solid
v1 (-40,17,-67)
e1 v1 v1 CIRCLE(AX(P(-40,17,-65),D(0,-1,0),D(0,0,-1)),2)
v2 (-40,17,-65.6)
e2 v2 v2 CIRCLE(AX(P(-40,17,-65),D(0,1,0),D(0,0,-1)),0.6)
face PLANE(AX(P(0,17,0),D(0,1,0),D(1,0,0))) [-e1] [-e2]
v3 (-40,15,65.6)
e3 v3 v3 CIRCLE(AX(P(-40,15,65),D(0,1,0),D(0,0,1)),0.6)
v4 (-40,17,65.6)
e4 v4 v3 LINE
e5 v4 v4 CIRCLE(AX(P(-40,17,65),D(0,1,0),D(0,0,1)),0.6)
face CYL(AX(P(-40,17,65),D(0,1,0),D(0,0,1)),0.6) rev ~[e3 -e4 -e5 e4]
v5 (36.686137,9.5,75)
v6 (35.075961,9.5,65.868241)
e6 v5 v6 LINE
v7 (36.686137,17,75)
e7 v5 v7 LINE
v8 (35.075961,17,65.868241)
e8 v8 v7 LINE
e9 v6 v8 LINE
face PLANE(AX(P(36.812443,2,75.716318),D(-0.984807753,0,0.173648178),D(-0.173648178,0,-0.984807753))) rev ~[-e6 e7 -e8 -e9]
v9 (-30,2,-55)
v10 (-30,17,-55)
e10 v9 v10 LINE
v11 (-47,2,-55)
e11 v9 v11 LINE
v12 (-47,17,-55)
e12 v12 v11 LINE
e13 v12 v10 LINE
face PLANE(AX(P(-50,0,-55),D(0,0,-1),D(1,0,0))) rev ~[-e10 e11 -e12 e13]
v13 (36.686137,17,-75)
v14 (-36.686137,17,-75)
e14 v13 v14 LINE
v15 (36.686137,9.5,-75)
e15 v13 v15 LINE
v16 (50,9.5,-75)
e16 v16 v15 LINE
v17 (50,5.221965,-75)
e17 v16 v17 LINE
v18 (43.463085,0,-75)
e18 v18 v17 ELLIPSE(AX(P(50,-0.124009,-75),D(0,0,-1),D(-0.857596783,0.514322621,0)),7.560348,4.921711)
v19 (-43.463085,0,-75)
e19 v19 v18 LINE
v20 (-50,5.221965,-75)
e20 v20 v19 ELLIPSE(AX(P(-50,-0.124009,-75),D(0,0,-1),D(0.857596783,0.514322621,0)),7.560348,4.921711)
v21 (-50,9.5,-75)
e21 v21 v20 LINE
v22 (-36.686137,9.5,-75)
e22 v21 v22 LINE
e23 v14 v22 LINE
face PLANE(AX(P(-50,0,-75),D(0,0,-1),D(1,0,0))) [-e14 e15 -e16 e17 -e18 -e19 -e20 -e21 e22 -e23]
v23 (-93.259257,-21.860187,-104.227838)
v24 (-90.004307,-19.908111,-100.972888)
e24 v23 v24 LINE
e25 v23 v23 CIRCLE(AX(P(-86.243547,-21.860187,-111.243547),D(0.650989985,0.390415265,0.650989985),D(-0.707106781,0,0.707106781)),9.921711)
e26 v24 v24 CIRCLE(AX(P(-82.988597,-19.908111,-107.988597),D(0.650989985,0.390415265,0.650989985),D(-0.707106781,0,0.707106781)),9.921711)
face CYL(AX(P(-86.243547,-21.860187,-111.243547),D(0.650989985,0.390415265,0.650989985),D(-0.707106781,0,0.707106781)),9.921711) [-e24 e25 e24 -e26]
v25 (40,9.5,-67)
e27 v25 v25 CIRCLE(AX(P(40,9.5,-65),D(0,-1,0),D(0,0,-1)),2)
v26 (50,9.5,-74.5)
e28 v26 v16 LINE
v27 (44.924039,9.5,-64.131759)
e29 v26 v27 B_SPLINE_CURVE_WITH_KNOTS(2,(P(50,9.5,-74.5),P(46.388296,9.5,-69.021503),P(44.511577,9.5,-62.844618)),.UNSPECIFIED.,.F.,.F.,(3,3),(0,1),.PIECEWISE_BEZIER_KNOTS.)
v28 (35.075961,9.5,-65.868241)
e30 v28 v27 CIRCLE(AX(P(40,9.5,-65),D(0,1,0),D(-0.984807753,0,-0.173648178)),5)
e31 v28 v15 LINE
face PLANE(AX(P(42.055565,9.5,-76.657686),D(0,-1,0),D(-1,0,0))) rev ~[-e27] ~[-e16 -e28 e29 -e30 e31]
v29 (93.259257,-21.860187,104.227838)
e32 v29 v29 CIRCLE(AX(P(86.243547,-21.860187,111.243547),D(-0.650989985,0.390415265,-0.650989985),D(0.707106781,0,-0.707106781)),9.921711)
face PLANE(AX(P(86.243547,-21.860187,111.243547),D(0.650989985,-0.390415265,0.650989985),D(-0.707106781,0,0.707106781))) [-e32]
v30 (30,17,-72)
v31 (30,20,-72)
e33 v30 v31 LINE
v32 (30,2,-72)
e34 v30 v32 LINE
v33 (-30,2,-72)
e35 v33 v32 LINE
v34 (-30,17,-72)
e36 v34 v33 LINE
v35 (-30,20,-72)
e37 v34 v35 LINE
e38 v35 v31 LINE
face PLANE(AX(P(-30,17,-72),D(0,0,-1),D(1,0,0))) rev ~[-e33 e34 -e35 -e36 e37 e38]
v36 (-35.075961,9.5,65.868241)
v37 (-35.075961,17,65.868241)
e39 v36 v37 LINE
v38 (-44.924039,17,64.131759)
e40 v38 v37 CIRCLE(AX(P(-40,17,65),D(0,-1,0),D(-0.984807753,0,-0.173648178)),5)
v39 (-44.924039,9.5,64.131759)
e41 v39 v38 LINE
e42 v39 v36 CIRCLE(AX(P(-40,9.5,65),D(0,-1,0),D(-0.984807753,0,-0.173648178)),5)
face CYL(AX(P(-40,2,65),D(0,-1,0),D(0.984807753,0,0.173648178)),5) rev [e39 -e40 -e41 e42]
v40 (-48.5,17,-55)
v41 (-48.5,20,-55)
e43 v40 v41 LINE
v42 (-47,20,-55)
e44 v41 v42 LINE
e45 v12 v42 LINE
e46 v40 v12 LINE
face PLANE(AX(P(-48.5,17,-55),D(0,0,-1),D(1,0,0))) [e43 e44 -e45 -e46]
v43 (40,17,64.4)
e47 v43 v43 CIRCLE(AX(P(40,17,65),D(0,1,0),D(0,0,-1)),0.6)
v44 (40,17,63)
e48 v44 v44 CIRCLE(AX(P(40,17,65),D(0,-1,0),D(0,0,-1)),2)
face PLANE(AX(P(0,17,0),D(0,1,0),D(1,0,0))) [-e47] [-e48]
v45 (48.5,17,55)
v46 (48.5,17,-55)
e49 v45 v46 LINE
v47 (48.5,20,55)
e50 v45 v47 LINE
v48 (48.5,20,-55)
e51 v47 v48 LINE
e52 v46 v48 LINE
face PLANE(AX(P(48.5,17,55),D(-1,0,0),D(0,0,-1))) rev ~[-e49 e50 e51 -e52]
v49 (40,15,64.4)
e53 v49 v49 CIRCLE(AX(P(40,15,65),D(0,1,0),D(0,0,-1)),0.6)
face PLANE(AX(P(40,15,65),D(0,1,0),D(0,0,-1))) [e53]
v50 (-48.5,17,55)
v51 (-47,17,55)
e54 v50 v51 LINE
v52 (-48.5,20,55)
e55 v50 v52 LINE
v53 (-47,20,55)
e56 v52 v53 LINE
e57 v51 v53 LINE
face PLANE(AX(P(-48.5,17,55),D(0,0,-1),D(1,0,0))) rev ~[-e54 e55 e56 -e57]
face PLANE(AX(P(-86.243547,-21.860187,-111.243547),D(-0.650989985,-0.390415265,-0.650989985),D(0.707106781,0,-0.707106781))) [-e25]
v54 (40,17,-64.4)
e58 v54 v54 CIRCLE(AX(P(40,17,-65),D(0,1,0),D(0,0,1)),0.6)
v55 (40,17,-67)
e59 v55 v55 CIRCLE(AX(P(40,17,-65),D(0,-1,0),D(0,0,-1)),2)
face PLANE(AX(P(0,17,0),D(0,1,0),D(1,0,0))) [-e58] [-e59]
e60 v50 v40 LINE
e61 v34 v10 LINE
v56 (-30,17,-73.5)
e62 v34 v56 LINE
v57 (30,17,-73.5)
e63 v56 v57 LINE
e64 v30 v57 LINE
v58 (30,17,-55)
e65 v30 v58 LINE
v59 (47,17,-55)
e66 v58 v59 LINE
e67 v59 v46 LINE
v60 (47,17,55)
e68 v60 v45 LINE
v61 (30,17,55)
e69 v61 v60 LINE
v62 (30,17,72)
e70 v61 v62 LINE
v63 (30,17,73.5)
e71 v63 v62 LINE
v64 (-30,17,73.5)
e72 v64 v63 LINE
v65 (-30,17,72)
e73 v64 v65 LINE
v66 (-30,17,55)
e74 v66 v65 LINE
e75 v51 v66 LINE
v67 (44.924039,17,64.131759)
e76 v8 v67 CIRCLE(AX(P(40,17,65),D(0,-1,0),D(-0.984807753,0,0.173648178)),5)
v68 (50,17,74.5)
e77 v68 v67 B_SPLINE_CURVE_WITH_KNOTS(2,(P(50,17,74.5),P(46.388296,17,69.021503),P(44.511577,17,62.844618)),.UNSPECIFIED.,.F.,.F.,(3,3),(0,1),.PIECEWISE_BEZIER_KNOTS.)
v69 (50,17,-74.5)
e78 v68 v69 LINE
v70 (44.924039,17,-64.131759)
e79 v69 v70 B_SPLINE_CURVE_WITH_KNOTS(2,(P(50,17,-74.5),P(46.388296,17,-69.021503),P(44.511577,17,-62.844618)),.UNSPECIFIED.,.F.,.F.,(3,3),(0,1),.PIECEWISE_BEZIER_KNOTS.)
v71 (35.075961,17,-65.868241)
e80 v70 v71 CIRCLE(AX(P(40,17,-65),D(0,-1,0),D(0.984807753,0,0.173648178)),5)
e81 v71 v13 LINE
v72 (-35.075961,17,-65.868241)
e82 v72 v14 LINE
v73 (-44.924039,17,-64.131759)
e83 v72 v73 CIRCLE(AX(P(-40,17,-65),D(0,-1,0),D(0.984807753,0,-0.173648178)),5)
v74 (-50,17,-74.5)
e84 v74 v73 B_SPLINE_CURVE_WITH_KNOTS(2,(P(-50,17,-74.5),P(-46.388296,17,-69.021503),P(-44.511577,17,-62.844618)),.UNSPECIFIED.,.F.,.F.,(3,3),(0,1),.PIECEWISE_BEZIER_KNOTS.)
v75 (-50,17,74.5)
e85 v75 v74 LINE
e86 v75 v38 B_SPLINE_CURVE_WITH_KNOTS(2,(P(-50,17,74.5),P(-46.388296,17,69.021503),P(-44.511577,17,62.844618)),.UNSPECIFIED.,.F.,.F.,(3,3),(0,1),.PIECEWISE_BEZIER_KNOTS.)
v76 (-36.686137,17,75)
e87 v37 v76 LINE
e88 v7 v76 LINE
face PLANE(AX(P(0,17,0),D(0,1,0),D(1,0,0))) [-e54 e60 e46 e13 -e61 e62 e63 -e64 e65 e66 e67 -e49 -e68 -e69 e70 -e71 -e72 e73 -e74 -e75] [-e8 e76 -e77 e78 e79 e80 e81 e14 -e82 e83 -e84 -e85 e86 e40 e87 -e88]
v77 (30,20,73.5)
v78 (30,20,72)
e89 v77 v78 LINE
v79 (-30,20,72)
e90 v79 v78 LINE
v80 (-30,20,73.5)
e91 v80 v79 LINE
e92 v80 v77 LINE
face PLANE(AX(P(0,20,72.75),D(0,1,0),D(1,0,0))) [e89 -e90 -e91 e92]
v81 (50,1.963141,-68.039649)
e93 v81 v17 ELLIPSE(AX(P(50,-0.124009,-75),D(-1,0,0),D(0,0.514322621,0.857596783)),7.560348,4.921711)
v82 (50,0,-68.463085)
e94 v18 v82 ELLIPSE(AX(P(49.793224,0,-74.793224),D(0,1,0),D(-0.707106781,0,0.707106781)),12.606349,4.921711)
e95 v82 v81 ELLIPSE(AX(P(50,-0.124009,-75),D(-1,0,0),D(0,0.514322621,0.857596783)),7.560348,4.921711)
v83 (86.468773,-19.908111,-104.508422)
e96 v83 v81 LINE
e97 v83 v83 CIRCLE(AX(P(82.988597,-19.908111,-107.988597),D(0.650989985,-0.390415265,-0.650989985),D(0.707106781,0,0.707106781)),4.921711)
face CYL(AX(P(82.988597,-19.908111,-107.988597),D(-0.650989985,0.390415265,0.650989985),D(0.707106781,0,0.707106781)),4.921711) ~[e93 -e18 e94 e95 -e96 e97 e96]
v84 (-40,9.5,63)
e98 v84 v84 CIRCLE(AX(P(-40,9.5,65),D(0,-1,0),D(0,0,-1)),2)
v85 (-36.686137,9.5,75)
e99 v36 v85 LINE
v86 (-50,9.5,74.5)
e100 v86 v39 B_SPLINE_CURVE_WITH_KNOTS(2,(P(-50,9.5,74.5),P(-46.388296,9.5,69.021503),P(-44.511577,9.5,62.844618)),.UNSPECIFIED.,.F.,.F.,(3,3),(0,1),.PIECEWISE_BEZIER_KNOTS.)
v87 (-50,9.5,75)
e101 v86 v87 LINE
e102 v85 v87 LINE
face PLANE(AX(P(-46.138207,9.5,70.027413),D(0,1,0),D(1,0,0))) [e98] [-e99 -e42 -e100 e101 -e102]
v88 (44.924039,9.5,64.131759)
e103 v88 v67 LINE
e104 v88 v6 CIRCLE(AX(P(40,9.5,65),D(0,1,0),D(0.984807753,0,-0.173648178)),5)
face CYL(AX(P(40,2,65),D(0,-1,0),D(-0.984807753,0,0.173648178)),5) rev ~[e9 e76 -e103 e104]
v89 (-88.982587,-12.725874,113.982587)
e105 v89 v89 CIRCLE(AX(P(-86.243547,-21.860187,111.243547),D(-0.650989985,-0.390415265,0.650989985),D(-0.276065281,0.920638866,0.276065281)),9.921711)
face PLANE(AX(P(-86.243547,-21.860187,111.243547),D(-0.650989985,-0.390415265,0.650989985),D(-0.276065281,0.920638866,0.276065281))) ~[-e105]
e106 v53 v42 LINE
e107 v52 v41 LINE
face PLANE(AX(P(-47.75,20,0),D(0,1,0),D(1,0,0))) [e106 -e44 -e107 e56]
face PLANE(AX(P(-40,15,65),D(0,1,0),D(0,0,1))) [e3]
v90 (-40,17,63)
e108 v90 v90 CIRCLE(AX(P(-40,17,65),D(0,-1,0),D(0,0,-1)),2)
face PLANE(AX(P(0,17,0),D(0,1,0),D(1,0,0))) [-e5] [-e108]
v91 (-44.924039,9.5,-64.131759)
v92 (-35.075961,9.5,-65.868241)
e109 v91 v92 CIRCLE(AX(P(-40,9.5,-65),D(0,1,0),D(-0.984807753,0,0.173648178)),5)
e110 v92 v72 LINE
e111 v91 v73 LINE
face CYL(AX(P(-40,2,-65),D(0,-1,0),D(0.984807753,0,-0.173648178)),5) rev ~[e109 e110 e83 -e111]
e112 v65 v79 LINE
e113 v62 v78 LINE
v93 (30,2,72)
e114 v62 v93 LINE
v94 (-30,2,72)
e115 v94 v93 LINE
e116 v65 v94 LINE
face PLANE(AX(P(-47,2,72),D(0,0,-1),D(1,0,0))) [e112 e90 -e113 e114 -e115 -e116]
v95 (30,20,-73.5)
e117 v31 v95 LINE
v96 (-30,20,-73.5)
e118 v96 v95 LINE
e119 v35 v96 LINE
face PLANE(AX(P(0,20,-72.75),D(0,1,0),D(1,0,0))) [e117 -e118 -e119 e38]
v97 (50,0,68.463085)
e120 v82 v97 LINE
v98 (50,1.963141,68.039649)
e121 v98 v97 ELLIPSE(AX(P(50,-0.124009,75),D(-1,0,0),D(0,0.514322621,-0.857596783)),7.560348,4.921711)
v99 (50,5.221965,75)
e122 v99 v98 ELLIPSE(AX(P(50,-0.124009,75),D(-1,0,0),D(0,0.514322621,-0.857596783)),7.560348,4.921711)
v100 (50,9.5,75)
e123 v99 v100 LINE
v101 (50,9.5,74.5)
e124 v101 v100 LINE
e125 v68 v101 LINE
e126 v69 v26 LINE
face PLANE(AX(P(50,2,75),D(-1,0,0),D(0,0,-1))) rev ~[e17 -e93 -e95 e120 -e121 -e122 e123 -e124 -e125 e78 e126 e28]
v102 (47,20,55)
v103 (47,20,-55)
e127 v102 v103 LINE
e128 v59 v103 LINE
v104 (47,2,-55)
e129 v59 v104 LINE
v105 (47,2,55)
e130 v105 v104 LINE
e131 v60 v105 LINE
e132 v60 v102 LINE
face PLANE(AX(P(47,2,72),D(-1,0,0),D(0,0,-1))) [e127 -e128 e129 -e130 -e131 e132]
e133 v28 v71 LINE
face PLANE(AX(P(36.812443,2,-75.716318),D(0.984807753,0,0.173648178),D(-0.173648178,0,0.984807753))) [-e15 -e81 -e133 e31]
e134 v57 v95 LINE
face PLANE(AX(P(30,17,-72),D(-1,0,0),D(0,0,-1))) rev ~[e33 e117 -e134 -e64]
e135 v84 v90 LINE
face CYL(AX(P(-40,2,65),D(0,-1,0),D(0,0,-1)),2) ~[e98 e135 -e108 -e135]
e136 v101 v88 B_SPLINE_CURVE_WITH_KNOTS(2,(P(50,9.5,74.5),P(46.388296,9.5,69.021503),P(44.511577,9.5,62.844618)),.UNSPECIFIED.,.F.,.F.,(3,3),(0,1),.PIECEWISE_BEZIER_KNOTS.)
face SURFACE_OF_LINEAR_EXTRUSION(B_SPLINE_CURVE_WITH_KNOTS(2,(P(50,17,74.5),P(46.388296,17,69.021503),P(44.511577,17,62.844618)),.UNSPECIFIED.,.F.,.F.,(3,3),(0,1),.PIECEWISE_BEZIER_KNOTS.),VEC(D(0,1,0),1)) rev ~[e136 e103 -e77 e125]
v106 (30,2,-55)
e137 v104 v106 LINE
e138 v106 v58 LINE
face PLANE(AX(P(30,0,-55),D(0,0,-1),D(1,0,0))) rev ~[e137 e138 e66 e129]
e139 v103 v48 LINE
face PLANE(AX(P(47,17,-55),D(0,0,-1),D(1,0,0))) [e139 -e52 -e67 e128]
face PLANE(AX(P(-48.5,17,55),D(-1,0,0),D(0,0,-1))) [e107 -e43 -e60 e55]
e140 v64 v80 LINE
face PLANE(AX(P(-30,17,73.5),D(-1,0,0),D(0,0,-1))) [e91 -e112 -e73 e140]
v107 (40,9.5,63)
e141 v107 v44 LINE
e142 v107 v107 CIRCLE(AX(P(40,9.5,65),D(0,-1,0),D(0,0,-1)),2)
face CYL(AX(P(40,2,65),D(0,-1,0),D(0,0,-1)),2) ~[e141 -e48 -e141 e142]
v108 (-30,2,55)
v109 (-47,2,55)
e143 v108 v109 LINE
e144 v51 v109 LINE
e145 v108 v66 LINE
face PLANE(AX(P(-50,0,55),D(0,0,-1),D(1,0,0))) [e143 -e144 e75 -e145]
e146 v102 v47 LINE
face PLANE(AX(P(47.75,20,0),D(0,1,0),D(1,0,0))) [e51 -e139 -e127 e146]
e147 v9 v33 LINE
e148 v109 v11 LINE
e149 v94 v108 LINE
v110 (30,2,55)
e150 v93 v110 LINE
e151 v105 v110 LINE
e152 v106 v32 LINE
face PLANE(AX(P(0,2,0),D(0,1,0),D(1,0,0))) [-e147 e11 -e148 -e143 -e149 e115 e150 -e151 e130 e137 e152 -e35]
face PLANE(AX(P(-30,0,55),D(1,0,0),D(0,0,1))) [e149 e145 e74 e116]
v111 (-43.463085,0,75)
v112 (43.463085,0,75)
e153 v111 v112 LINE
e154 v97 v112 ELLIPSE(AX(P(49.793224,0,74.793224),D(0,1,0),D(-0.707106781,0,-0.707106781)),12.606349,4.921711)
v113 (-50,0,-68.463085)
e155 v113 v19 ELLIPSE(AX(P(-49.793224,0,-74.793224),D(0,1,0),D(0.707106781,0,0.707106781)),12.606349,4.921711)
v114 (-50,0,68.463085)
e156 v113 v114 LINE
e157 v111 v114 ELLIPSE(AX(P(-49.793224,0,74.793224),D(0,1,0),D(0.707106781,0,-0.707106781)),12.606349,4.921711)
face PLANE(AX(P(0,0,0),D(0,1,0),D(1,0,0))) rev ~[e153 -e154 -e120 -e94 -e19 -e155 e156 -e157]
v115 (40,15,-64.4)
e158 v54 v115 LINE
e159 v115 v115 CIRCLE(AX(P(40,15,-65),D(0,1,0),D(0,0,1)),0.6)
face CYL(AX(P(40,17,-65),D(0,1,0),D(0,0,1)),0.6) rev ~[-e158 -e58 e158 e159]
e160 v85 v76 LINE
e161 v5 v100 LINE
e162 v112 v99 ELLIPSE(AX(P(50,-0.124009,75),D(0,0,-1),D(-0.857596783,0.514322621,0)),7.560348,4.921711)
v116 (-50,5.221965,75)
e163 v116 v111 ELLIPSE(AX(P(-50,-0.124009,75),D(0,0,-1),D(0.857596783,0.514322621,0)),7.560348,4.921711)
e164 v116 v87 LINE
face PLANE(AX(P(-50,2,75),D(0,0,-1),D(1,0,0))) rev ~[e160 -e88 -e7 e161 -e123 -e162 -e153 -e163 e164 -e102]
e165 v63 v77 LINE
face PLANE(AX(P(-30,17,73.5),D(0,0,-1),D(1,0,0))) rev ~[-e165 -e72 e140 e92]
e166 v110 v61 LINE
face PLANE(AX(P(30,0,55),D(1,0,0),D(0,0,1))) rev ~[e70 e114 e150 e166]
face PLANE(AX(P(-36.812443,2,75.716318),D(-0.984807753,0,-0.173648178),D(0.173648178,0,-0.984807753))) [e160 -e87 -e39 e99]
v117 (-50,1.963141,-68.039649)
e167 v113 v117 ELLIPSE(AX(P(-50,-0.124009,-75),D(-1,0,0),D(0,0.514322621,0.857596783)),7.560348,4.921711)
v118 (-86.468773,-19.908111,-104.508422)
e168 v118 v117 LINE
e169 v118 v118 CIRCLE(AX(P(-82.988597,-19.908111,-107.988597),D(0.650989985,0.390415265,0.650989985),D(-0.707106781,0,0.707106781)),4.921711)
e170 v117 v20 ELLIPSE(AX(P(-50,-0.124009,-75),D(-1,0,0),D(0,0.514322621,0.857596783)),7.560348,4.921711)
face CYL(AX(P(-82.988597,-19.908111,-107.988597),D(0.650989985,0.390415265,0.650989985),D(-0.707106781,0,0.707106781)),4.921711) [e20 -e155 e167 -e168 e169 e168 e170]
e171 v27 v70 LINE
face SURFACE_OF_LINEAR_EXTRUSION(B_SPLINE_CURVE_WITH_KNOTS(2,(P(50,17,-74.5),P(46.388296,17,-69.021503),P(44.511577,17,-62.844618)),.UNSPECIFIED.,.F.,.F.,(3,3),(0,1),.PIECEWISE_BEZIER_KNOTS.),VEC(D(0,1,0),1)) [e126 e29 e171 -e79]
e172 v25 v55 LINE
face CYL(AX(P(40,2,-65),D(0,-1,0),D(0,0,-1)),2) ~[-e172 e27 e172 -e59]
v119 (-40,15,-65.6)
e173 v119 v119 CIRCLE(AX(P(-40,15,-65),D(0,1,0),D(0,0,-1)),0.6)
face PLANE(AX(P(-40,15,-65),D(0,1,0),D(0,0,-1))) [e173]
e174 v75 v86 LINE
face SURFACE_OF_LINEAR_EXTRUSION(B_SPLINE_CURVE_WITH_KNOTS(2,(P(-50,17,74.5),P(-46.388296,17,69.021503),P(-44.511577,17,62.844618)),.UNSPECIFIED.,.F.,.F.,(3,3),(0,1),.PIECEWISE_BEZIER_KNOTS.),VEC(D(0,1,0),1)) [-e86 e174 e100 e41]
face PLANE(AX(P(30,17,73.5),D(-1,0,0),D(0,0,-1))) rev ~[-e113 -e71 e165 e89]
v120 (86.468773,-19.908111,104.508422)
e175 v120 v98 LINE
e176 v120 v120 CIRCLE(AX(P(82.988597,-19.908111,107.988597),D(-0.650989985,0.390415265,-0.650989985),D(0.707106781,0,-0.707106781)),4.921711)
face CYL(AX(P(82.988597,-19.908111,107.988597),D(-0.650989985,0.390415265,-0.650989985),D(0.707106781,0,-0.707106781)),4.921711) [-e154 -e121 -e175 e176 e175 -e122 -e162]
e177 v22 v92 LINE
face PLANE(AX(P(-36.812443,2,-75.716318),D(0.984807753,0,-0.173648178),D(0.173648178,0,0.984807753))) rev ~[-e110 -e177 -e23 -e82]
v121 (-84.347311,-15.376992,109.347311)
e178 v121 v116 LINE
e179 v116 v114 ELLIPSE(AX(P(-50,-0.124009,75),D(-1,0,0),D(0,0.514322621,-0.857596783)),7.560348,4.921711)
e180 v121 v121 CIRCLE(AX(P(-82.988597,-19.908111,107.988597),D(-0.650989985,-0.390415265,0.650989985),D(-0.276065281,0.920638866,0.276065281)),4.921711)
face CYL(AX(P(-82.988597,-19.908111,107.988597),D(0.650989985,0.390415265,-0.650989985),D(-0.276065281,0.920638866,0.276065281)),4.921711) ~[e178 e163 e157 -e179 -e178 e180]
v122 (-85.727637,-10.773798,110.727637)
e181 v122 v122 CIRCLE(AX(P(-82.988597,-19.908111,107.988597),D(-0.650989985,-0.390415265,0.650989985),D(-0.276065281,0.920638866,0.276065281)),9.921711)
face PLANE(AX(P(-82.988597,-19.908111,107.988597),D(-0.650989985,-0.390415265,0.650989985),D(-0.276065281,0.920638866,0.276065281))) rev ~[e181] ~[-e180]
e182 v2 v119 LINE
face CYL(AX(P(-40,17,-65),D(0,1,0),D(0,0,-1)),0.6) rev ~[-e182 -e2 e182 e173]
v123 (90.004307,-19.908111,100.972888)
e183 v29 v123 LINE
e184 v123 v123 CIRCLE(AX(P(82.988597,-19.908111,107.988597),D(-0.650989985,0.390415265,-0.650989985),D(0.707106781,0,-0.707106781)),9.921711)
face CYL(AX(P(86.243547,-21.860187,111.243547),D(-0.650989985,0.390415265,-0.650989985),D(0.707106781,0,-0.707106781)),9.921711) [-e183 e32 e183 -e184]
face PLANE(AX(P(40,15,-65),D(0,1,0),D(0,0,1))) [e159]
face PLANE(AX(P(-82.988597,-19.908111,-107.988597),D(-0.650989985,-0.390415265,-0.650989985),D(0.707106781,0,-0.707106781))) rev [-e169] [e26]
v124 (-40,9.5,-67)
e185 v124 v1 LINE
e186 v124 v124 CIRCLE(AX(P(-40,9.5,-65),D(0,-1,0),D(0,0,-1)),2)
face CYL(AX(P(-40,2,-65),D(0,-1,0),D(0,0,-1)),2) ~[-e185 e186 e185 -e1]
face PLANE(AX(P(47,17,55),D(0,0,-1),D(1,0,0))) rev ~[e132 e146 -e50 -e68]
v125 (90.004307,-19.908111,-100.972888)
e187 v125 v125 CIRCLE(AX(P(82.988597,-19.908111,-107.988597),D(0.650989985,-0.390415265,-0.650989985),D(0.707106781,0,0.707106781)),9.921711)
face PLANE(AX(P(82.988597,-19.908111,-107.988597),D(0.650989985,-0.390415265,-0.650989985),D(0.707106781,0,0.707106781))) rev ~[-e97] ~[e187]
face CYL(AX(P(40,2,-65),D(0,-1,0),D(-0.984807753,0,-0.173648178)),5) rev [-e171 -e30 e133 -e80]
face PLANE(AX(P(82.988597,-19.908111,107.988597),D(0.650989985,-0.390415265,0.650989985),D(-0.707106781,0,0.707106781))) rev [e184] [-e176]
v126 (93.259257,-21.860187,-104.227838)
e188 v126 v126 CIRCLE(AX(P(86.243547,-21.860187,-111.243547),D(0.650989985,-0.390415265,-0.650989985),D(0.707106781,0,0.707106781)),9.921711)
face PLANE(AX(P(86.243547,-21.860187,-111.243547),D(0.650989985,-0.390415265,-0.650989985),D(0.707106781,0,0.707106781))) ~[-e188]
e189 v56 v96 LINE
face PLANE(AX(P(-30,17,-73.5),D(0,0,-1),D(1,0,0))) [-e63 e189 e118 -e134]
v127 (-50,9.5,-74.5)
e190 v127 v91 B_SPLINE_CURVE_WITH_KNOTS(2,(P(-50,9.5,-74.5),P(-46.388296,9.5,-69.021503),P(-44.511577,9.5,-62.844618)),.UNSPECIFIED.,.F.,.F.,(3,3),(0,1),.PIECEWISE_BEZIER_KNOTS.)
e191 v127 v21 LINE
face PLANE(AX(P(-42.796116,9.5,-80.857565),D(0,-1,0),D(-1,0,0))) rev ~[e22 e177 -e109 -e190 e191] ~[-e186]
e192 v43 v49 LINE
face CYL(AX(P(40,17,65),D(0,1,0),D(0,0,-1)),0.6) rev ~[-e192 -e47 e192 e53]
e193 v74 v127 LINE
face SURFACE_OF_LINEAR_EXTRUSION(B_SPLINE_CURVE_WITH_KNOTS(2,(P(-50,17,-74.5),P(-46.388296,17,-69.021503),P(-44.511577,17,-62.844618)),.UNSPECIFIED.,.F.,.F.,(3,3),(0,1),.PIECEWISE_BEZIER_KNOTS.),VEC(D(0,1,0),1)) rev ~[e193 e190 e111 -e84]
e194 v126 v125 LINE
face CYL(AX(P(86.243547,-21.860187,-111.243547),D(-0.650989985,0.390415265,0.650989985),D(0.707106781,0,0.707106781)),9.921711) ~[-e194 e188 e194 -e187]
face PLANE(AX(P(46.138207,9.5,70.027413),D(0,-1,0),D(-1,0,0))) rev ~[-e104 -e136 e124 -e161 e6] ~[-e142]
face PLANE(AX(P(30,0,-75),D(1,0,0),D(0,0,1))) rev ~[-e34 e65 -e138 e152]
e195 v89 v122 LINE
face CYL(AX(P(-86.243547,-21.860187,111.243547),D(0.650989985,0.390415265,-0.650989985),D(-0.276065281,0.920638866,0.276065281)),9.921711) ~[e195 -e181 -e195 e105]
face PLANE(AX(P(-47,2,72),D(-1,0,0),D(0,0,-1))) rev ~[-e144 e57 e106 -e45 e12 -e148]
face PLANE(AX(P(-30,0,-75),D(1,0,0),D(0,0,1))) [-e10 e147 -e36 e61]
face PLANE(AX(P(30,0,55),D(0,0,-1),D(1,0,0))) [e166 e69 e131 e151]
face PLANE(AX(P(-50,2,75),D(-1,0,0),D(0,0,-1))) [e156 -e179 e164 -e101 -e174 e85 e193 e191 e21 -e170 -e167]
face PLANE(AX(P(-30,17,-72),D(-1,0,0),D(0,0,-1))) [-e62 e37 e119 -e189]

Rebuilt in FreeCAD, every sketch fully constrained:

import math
import FreeCAD as App
import Part
import Sketcher

V = App.Vector
Q = App.Units.Quantity


def add_polygon(sketch, points):
    """Adds a closed chain of lines whose ends are joined by coincident constraints."""
    first, n = sketch.GeometryCount, len(points)
    for a, b in zip(points, points[1:] + points[:1]):
        sketch.addGeometry(Part.LineSegment(App.Vector(*a, 0), App.Vector(*b, 0)), False)
    for i in range(n):
        sketch.addConstraint(Sketcher.Constraint("Coincident", first + i, 2, first + (i + 1) % n, 1))

doc = App.newDocument("Part")
body = doc.addObject("PartDesign::Body", "Body")

# Sketch on XZ plane
sketch1 = doc.addObject("Sketcher::SketchObject", "Sketch")
body.addObject(sketch1)
sketch1.AttachmentSupport = (doc.XZ_Plane, [""])
sketch1.MapMode = "FlatFace"
add_polygon(sketch1, [(-50, -75), (-50, 75), (50, 75), (50, -75)])  # lines 0-3
sketch1.addConstraint([
    Sketcher.Constraint("Vertical", 0),
    Sketcher.Constraint("Horizontal", 1),
    Sketcher.Constraint("Vertical", 2),
    Sketcher.Constraint("Horizontal", 3),
    Sketcher.Constraint("Symmetric", 0, 2, 2, 2, -1, 1),
    Sketcher.Constraint("DistanceX", 1, 1, 1, 2, 100.0),
    Sketcher.Constraint("DistanceY", 0, 1, 0, 2, 150.0),
])
pad1 = doc.addObject("PartDesign::Pad", "Pad")
body.addObject(pad1)
pad1.Profile = sketch1
pad1.Length = 2
pad1.Reversed = True

# Sketch on XZ plane
sketch2 = doc.addObject("Sketcher::SketchObject", "Sketch001")
body.addObject(sketch2)
sketch2.AttachmentSupport = (doc.XZ_Plane, [""])
sketch2.MapMode = "FlatFace"
sketch2.AttachmentOffset = App.Placement(V(0, 0, -2), App.Rotation())
add_polygon(sketch2, [(-50, -75), (-50, 75), (50, 75), (50, -75)])  # lines 0-3
add_polygon(sketch2, [(47, 72), (-47, 72), (-47, -72), (47, -72)])  # lines 4-7
sketch2.addConstraint([
    Sketcher.Constraint("Vertical", 0),
    Sketcher.Constraint("Horizontal", 1),
    Sketcher.Constraint("Vertical", 2),
    Sketcher.Constraint("Horizontal", 3),
    Sketcher.Constraint("Horizontal", 4),
    Sketcher.Constraint("Vertical", 5),
    Sketcher.Constraint("Horizontal", 6),
    Sketcher.Constraint("Vertical", 7),
    Sketcher.Constraint("Symmetric", 0, 2, 2, 2, -1, 1),
    Sketcher.Constraint("Symmetric", 4, 2, 6, 2, -1, 1),
    Sketcher.Constraint("DistanceX", 1, 1, 1, 2, 100.0),
    Sketcher.Constraint("DistanceX", 4, 2, 4, 1, 94.0),
    Sketcher.Constraint("DistanceY", 0, 1, 0, 2, 150.0),
    Sketcher.Constraint("DistanceY", 5, 2, 5, 1, 144.0),
])
pad2 = doc.addObject("PartDesign::Pad", "Pad001")
body.addObject(pad2)
pad2.Profile = sketch2
pad2.Length = 15
pad2.Reversed = True

# Sketch on XZ plane
sketch3 = doc.addObject("Sketcher::SketchObject", "Sketch002")
body.addObject(sketch3)
sketch3.AttachmentSupport = (doc.XZ_Plane, [""])
sketch3.MapMode = "FlatFace"
add_polygon(sketch3, [(-50, 75), (-50, 55), (-30, 55), (-30, 75)])  # lines 0-3
add_polygon(sketch3, [(-50, -55), (-50, -75), (-30, -75), (-30, -55)])  # lines 4-7
add_polygon(sketch3, [(30, -55), (30, -75), (50, -75), (50, -55)])  # lines 8-11
add_polygon(sketch3, [(30, 75), (30, 55), (50, 55), (50, 75)])  # lines 12-15
sketch3.addConstraint([
    Sketcher.Constraint("Vertical", 0),
    Sketcher.Constraint("Horizontal", 1),
    Sketcher.Constraint("Vertical", 2),
    Sketcher.Constraint("Horizontal", 3),
    Sketcher.Constraint("Vertical", 4),
    Sketcher.Constraint("Horizontal", 5),
    Sketcher.Constraint("Vertical", 6),
    Sketcher.Constraint("Horizontal", 7),
    Sketcher.Constraint("Vertical", 8),
    Sketcher.Constraint("Horizontal", 9),
    Sketcher.Constraint("Vertical", 10),
    Sketcher.Constraint("Horizontal", 11),
    Sketcher.Constraint("Vertical", 12),
    Sketcher.Constraint("Horizontal", 13),
    Sketcher.Constraint("Vertical", 14),
    Sketcher.Constraint("Horizontal", 15),
    Sketcher.Constraint("Symmetric", 2, 2, 8, 2, -1, 1),
    Sketcher.Constraint("Symmetric", 0, 2, 10, 2, -1, 1),
    Sketcher.Constraint("Symmetric", 6, 2, 12, 2, -1, 1),
    Sketcher.Constraint("Symmetric", 4, 2, 14, 2, -1, 1),
    Sketcher.Constraint("Symmetric", 5, 2, 8, 2, -2),
    Sketcher.Constraint("Symmetric", 7, 2, 10, 2, -2),
    Sketcher.Constraint("Equal", 15, 0),
    Sketcher.Constraint("DistanceX", 1, 1, 1, 2, 20.0),
    Sketcher.Constraint("DistanceX", 0, 2, -1, 1, 50.0),
    Sketcher.Constraint("DistanceY", -1, 1, 0, 2, 55.0),
])
pad3 = doc.addObject("PartDesign::Pad", "Pad002")
body.addObject(pad3)
pad3.Profile = sketch3
pad3.Length = 17
pad3.Reversed = True

# Sketch on XZ plane
sketch4 = doc.addObject("Sketcher::SketchObject", "Sketch003")
body.addObject(sketch4)
sketch4.AttachmentSupport = (doc.XZ_Plane, [""])
sketch4.MapMode = "FlatFace"
sketch4.AttachmentOffset = App.Placement(V(0, 0, -2), App.Rotation())
sketch4.addGeometry([
    Part.LineSegment(V(-46.7, -74, 0), V(-44.9, -64.1, 0)),  # 0
    Part.ArcOfCircle(Part.Circle(V(-40, -65, 0), V(0, 0, 1), 5), math.radians(-10), math.radians(170)),  # 1
    Part.LineSegment(V(-35.1, -65.9, 0), V(-36.8, -75.7, 0)),  # 2
    Part.ArcOfCircle(Part.Circle(V(-41.7, -74.8, 0), V(0, 0, 1), 5), math.radians(170), math.radians(350)),  # 3
    Part.Circle(V(-40, -65, 0), V(0, 0, 1), 2),  # 4
    Part.LineSegment(V(46.7, 74, 0), V(44.9, 64.1, 0)),  # 5
    Part.ArcOfCircle(Part.Circle(V(40, 65, 0), V(0, 0, 1), 5), math.radians(170), math.radians(350)),  # 6
    Part.LineSegment(V(35.1, 65.9, 0), V(36.8, 75.7, 0)),  # 7
    Part.ArcOfCircle(Part.Circle(V(41.7, 74.8, 0), V(0, 0, 1), 5), math.radians(-10), math.radians(170)),  # 8
    Part.Circle(V(40, 65, 0), V(0, 0, 1), 2),  # 9
    Part.LineSegment(V(44.9, -64.1, 0), V(46.7, -74, 0)),  # 10
    Part.ArcOfCircle(Part.Circle(V(41.7, -74.8, 0), V(0, 0, 1), 5), math.radians(-170), math.radians(10)),  # 11
    Part.LineSegment(V(36.8, -75.7, 0), V(35.1, -65.9, 0)),  # 12
    Part.ArcOfCircle(Part.Circle(V(40, -65, 0), V(0, 0, 1), 5), math.radians(10), math.radians(190)),  # 13
    Part.Circle(V(40, -65, 0), V(0, 0, 1), 2),  # 14
    Part.LineSegment(V(-44.9, 64.1, 0), V(-46.7, 74, 0)),  # 15
    Part.ArcOfCircle(Part.Circle(V(-41.7, 74.8, 0), V(0, 0, 1), 5), math.radians(10), math.radians(190)),  # 16
    Part.LineSegment(V(-36.8, 75.7, 0), V(-35.1, 65.9, 0)),  # 17
    Part.ArcOfCircle(Part.Circle(V(-40, 65, 0), V(0, 0, 1), 5), math.radians(-170), math.radians(10)),  # 18
    Part.Circle(V(-40, 65, 0), V(0, 0, 1), 2),  # 19
], False)
sketch4.addConstraint([
    Sketcher.Constraint("Tangent", 0, 2, 1, 2),
    Sketcher.Constraint("Tangent", 1, 1, 2, 1),
    Sketcher.Constraint("Tangent", 2, 2, 3, 2),
    Sketcher.Constraint("Tangent", 3, 1, 0, 1),
    Sketcher.Constraint("Tangent", 5, 2, 6, 2),
    Sketcher.Constraint("Tangent", 6, 1, 7, 1),
    Sketcher.Constraint("Tangent", 7, 2, 8, 2),
    Sketcher.Constraint("Tangent", 8, 1, 5, 1),
    Sketcher.Constraint("Tangent", 10, 2, 11, 2),
    Sketcher.Constraint("Tangent", 11, 1, 12, 1),
    Sketcher.Constraint("Tangent", 12, 2, 13, 2),
    Sketcher.Constraint("Tangent", 13, 1, 10, 1),
    Sketcher.Constraint("Tangent", 15, 2, 16, 2),
    Sketcher.Constraint("Tangent", 16, 1, 17, 1),
    Sketcher.Constraint("Tangent", 17, 2, 18, 2),
    Sketcher.Constraint("Tangent", 18, 1, 15, 1),
    Sketcher.Constraint("Coincident", 4, 3, 1, 3),
    Sketcher.Constraint("Coincident", 9, 3, 6, 3),
    Sketcher.Constraint("Coincident", 14, 3, 13, 3),
    Sketcher.Constraint("Coincident", 19, 3, 18, 3),
    Sketcher.Constraint("Equal", 1, 3),
    Sketcher.Constraint("Equal", 3, 6),
    Sketcher.Constraint("Equal", 6, 8),
    Sketcher.Constraint("Equal", 4, 9),
    Sketcher.Constraint("Equal", 8, 11),
    Sketcher.Constraint("Equal", 11, 13),
    Sketcher.Constraint("Equal", 9, 14),
    Sketcher.Constraint("Equal", 13, 16),
    Sketcher.Constraint("Equal", 16, 18),
    Sketcher.Constraint("Equal", 14, 19),
    Sketcher.Constraint("Symmetric", 1, 3, 6, 3, -1, 1),
    Sketcher.Constraint("Symmetric", 3, 3, 8, 3, -1, 1),
    Sketcher.Constraint("Symmetric", 11, 3, 16, 3, -1, 1),
    Sketcher.Constraint("Symmetric", 13, 3, 18, 3, -1, 1),
    Sketcher.Constraint("Symmetric", 3, 3, 11, 3, -2),
    Sketcher.Constraint("Symmetric", 1, 3, 13, 3, -2),
    Sketcher.Constraint("Diameter", 4, 4.0),
    Sketcher.Constraint("Radius", 1, 5.0),
    Sketcher.Constraint("Angle", 0, Q("80 deg")),
    Sketcher.Constraint("Distance", 0, 10.0),
    Sketcher.Constraint("DistanceX", 1, 3, -1, 1, 40.0),
    Sketcher.Constraint("DistanceY", 1, 3, -1, 1, 65.0),
])
pocket1 = doc.addObject("PartDesign::Pocket", "Pocket")
body.addObject(pocket1)
pocket1.Profile = sketch4
pocket1.Length = 92.378334

# Sketch on XZ plane
sketch5 = doc.addObject("Sketcher::SketchObject", "Sketch004")
body.addObject(sketch5)
sketch5.AttachmentSupport = (doc.XZ_Plane, [""])
sketch5.MapMode = "FlatFace"
sketch5.AttachmentOffset = App.Placement(V(0, 0, -2), App.Rotation())
sketch5.addGeometry([
    Part.LineSegment(V(39, -89, 0), V(35, -66, 0)),  # 0
    Part.ArcOfCircle(Part.Circle(V(40, -65, 0), V(0, 0, 1), 5), math.radians(10), math.radians(190)),  # 1
    Part.LineSegment(V(45, -64, 0), V(49, -87, 0)),  # 2
    Part.ArcOfCircle(Part.Circle(V(44, -88, 0), V(0, 0, 1), 5), math.radians(-170), math.radians(10)),  # 3
    Part.LineSegment(V(-51, -96, 0), V(-45, -64, 0)),  # 4
    Part.ArcOfCircle(Part.Circle(V(-40, -65, 0), V(0, 0, 1), 5), math.radians(-10), math.radians(170)),  # 5
    Part.LineSegment(V(-35, -66, 0), V(-41, -98, 0)),  # 6
    Part.ArcOfCircle(Part.Circle(V(-46, -97, 0), V(0, 0, 1), 5), math.radians(170), math.radians(350)),  # 7
    Part.LineSegment(V(-37, 76, 0), V(-35, 66, 0)),  # 8
    Part.ArcOfCircle(Part.Circle(V(-40, 65, 0), V(0, 0, 1), 5), math.radians(-170), math.radians(10)),  # 9
    Part.LineSegment(V(-45, 64, 0), V(-47, 74, 0)),  # 10
    Part.ArcOfCircle(Part.Circle(V(-42, 75, 0), V(0, 0, 1), 5), math.radians(10), math.radians(190)),  # 11
    Part.LineSegment(V(48, 79, 0), V(45, 64, 0)),  # 12
    Part.ArcOfCircle(Part.Circle(V(40, 65, 0), V(0, 0, 1), 5), math.radians(170), math.radians(350)),  # 13
    Part.LineSegment(V(35, 66, 0), V(38, 81, 0)),  # 14
    Part.ArcOfCircle(Part.Circle(V(43, 80, 0), V(0, 0, 1), 5), math.radians(-10), math.radians(170)),  # 15
], False)
sketch5.addConstraint([
    Sketcher.Constraint("Tangent", 0, 2, 1, 2),
    Sketcher.Constraint("Tangent", 1, 1, 2, 1),
    Sketcher.Constraint("Tangent", 2, 2, 3, 2),
    Sketcher.Constraint("Tangent", 3, 1, 0, 1),
    Sketcher.Constraint("Tangent", 4, 2, 5, 2),
    Sketcher.Constraint("Tangent", 5, 1, 6, 1),
    Sketcher.Constraint("Tangent", 6, 2, 7, 2),
    Sketcher.Constraint("Tangent", 7, 1, 4, 1),
    Sketcher.Constraint("Tangent", 8, 2, 9, 2),
    Sketcher.Constraint("Tangent", 9, 1, 10, 1),
    Sketcher.Constraint("Tangent", 10, 2, 11, 2),
    Sketcher.Constraint("Tangent", 11, 1, 8, 1),
    Sketcher.Constraint("Tangent", 12, 2, 13, 2),
    Sketcher.Constraint("Tangent", 13, 1, 14, 1),
    Sketcher.Constraint("Tangent", 14, 2, 15, 2),
    Sketcher.Constraint("Tangent", 15, 1, 12, 1),
    Sketcher.Constraint("Equal", 1, 3),
    Sketcher.Constraint("Equal", 3, 5),
    Sketcher.Constraint("Equal", 5, 7),
    Sketcher.Constraint("Equal", 7, 9),
    Sketcher.Constraint("Equal", 9, 11),
    Sketcher.Constraint("Equal", 11, 13),
    Sketcher.Constraint("Equal", 13, 15),
    Sketcher.Constraint("Symmetric", 1, 3, 9, 3, -1, 1),
    Sketcher.Constraint("Symmetric", 5, 3, 13, 3, -1, 1),
    Sketcher.Constraint("Symmetric", 1, 3, 5, 3, -2),
    Sketcher.Constraint("Parallel", 2, 8),
    Sketcher.Constraint("Parallel", 6, 12),
    Sketcher.Constraint("Horizontal", 1, 1, 4, 2),
    Sketcher.Constraint("Radius", 1, 5.0),
    Sketcher.Constraint("Angle", 0, Q("100 deg")),
    Sketcher.Constraint("Distance", 8, 10.0),
    Sketcher.Constraint("DistanceX", -1, 1, 1, 3, 40.0),
    Sketcher.Constraint("DistanceY", 1, 3, -1, 1, 65.0),
    Sketcher.Constraint("DistanceX", 11, 3, 15, 3, 84.3481),
    Sketcher.Constraint("Distance", 0, 23.675049),
    Sketcher.Constraint("DistanceY", 7, 3, -1, 1, 96.715129),
])
pad4 = doc.addObject("PartDesign::Pad", "Pad003")
body.addObject(pad4)
pad4.Profile = sketch5
pad4.Length = 7.5
pad4.Reversed = True

# Sketch on XZ plane
sketch6 = doc.addObject("Sketcher::SketchObject", "Sketch005")
body.addObject(sketch6)
sketch6.AttachmentSupport = (doc.XZ_Plane, [""])
sketch6.MapMode = "FlatFace"
add_polygon(sketch6, [(-64, 106), (-64, -106), (64, -106), (64, 106)])  # lines 0-3
add_polygon(sketch6, [(50, -75), (-50, -75), (-50, 75), (50, 75)])  # lines 4-7
sketch6.addConstraint([
    Sketcher.Constraint("Vertical", 0),
    Sketcher.Constraint("Horizontal", 1),
    Sketcher.Constraint("Vertical", 2),
    Sketcher.Constraint("Horizontal", 3),
    Sketcher.Constraint("Horizontal", 4),
    Sketcher.Constraint("Vertical", 5),
    Sketcher.Constraint("Horizontal", 6),
    Sketcher.Constraint("Vertical", 7),
    Sketcher.Constraint("Symmetric", 0, 2, 2, 2, -1, 1),
    Sketcher.Constraint("Symmetric", 4, 2, 6, 2, -1, 1),
    Sketcher.Constraint("DistanceX", 4, 2, 4, 1, 100.0),
    Sketcher.Constraint("DistanceY", 5, 1, 5, 2, 150.0),
    Sketcher.Constraint("DistanceX", 1, 1, 1, 2, 127.938873),
    Sketcher.Constraint("DistanceY", 0, 2, 0, 1, 211.588516),
])
pocket2 = doc.addObject("PartDesign::Pocket", "Pocket001")
body.addObject(pocket2)
pocket2.Profile = sketch6
pocket2.Type = "ThroughAll"

# Sketch on XZ plane
sketch7 = doc.addObject("Sketcher::SketchObject", "Sketch006")
body.addObject(sketch7)
sketch7.AttachmentSupport = (doc.XZ_Plane, [""])
sketch7.MapMode = "FlatFace"
sketch7.AttachmentOffset = App.Placement(V(0, 0, -17), App.Rotation())
sketch7.addGeometry([
    Part.LineSegment(V(-50, 74.5, 0), V(-50, 75, 0)),  # 0
    Part.LineSegment(V(-50, 75, 0), V(-44.511577, 75, 0)),  # 1
    Part.LineSegment(V(-44.511577, 75, 0), V(-44.511577, 62.844618, 0)),  # 2
    Part.BSplineCurve([V(-50, 74.5, 0), V(-46.388296, 69.021503, 0), V(-44.511577, 62.844618, 0)], [3, 3], [0, 1], False, 2, [1, 1, 1], False),  # 3
    Part.LineSegment(V(44.511577, 75, 0), V(50, 75, 0)),  # 4
    Part.LineSegment(V(50, 75, 0), V(50, 74.5, 0)),  # 5
    Part.BSplineCurve([V(50, 74.5, 0), V(46.388296, 69.021503, 0), V(44.511577, 62.844618, 0)], [3, 3], [0, 1], False, 2, [1, 1, 1], False),  # 6
    Part.LineSegment(V(44.511577, 62.844618, 0), V(44.511577, 75, 0)),  # 7
    Part.LineSegment(V(-44.511577, -75, 0), V(-50, -75, 0)),  # 8
    Part.LineSegment(V(-50, -75, 0), V(-50, -74.5, 0)),  # 9
    Part.BSplineCurve([V(-50, -74.5, 0), V(-46.388296, -69.021503, 0), V(-44.511577, -62.844618, 0)], [3, 3], [0, 1], False, 2, [1, 1, 1], False),  # 10
    Part.LineSegment(V(-44.511577, -62.844618, 0), V(-44.511577, -75, 0)),  # 11
    Part.LineSegment(V(50, -75, 0), V(44.511577, -75, 0)),  # 12
    Part.LineSegment(V(44.511577, -75, 0), V(44.511577, -62.844618, 0)),  # 13
    Part.BSplineCurve([V(50, -74.5, 0), V(46.388296, -69.021503, 0), V(44.511577, -62.844618, 0)], [3, 3], [0, 1], False, 2, [1, 1, 1], False),  # 14
    Part.LineSegment(V(50, -74.5, 0), V(50, -75, 0)),  # 15
], False)
sketch7.addConstraint([
    Sketcher.Constraint("Block", 3),
    Sketcher.Constraint("Block", 6),
    Sketcher.Constraint("Block", 10),
    Sketcher.Constraint("Block", 14),
    Sketcher.Constraint("Coincident", 0, 2, 1, 1),
    Sketcher.Constraint("Coincident", 1, 2, 2, 1),
    Sketcher.Constraint("Coincident", 2, 2, 3, 2),
    Sketcher.Constraint("Coincident", 3, 1, 0, 1),
    Sketcher.Constraint("Coincident", 4, 2, 5, 1),
    Sketcher.Constraint("Coincident", 5, 2, 6, 1),
    Sketcher.Constraint("Coincident", 6, 2, 7, 1),
    Sketcher.Constraint("Coincident", 7, 2, 4, 1),
    Sketcher.Constraint("Coincident", 8, 2, 9, 1),
    Sketcher.Constraint("Coincident", 9, 2, 10, 1),
    Sketcher.Constraint("Coincident", 10, 2, 11, 1),
    Sketcher.Constraint("Coincident", 11, 2, 8, 1),
    Sketcher.Constraint("Coincident", 12, 2, 13, 1),
    Sketcher.Constraint("Coincident", 13, 2, 14, 2),
    Sketcher.Constraint("Coincident", 14, 1, 15, 1),
    Sketcher.Constraint("Coincident", 15, 2, 12, 1),
    Sketcher.Constraint("Vertical", 0),
    Sketcher.Constraint("Horizontal", 1),
    Sketcher.Constraint("Vertical", 2),
    Sketcher.Constraint("Horizontal", 4),
    Sketcher.Constraint("Vertical", 5),
    Sketcher.Constraint("Vertical", 7),
    Sketcher.Constraint("Horizontal", 8),
    Sketcher.Constraint("Vertical", 9),
    Sketcher.Constraint("Vertical", 11),
    Sketcher.Constraint("Horizontal", 12),
    Sketcher.Constraint("Vertical", 13),
    Sketcher.Constraint("Vertical", 15),
    Sketcher.Constraint("Horizontal", 1, 2, 4, 2),
    Sketcher.Constraint("Horizontal", 11, 2, 12, 2),
    Sketcher.Constraint("Equal", 5, 9),
    Sketcher.Constraint("DistanceY", 0, 1, 0, 2, 0.5),
])
pocket3 = doc.addObject("PartDesign::Pocket", "Pocket002")
body.addObject(pocket3)
pocket3.Profile = sketch7
pocket3.Length = 7.5
pocket3.Reversed = True

# Sketch on XZ plane
sketch8 = doc.addObject("Sketcher::SketchObject", "Sketch007")
body.addObject(sketch8)
sketch8.AttachmentSupport = (doc.XZ_Plane, [""])
sketch8.MapMode = "FlatFace"
sketch8.AttachmentOffset = App.Placement(V(0, 0, -17), App.Rotation())
add_polygon(sketch8, [(-30, -73.5), (-30, -72), (30, -72), (30, -73.5)])  # lines 0-3
add_polygon(sketch8, [(-30, 72), (-30, 73.5), (30, 73.5), (30, 72)])  # lines 4-7
add_polygon(sketch8, [(-48.5, -55), (-48.5, 55), (-47, 55), (-47, -55)])  # lines 8-11
add_polygon(sketch8, [(47, -55), (47, 55), (48.5, 55), (48.5, -55)])  # lines 12-15
sketch8.addConstraint([
    Sketcher.Constraint("Vertical", 0),
    Sketcher.Constraint("Horizontal", 1),
    Sketcher.Constraint("Vertical", 2),
    Sketcher.Constraint("Horizontal", 3),
    Sketcher.Constraint("Vertical", 4),
    Sketcher.Constraint("Horizontal", 5),
    Sketcher.Constraint("Vertical", 6),
    Sketcher.Constraint("Horizontal", 7),
    Sketcher.Constraint("Vertical", 8),
    Sketcher.Constraint("Horizontal", 9),
    Sketcher.Constraint("Vertical", 10),
    Sketcher.Constraint("Horizontal", 11),
    Sketcher.Constraint("Vertical", 12),
    Sketcher.Constraint("Horizontal", 13),
    Sketcher.Constraint("Vertical", 14),
    Sketcher.Constraint("Horizontal", 15),
    Sketcher.Constraint("Symmetric", 2, 2, 4, 2, -1, 1),
    Sketcher.Constraint("Symmetric", 0, 2, 6, 2, -1, 1),
    Sketcher.Constraint("Symmetric", 10, 2, 12, 2, -1, 1),
    Sketcher.Constraint("Symmetric", 8, 2, 14, 2, -1, 1),
    Sketcher.Constraint("Horizontal", 9, 2, 12, 2),
    Sketcher.Constraint("Vertical", 3, 2, 4, 2),
    Sketcher.Constraint("Equal", 15, 0),
    Sketcher.Constraint("DistanceX", 1, 1, 1, 2, 60.0),
    Sketcher.Constraint("DistanceY", 8, 1, 8, 2, 110.0),
    Sketcher.Constraint("DistanceX", 9, 1, 9, 2, 1.5),
    Sketcher.Constraint("DistanceY", 0, 2, -1, 1, 72.0),
    Sketcher.Constraint("DistanceX", 9, 2, -1, 1, 47.0),
])
pad5 = doc.addObject("PartDesign::Pad", "Pad004")
body.addObject(pad5)
pad5.Profile = sketch8
pad5.Length = 3
pad5.Reversed = True

# Sketch on XZ plane
sketch9 = doc.addObject("Sketcher::SketchObject", "Sketch008")
body.addObject(sketch9)
sketch9.AttachmentSupport = (doc.XZ_Plane, [""])
sketch9.MapMode = "FlatFace"
sketch9.AttachmentOffset = App.Placement(V(0, 0, -17), App.Rotation())
sketch9.addGeometry([
    Part.Circle(V(-40, 65, 0), V(0, 0, 1), 0.6),
    Part.Circle(V(-40, -65, 0), V(0, 0, 1), 0.6),
    Part.Circle(V(40, -65, 0), V(0, 0, 1), 0.6),
    Part.Circle(V(40, 65, 0), V(0, 0, 1), 0.6),
], False)
sketch9.addConstraint([
    Sketcher.Constraint("Equal", 0, 1),
    Sketcher.Constraint("Equal", 1, 2),
    Sketcher.Constraint("Equal", 2, 3),
    Sketcher.Constraint("Symmetric", 0, 3, 2, 3, -1, 1),
    Sketcher.Constraint("Symmetric", 1, 3, 3, 3, -1, 1),
    Sketcher.Constraint("Symmetric", 1, 3, 2, 3, -2),
    Sketcher.Constraint("Diameter", 0, 1.2),
    Sketcher.Constraint("DistanceX", 0, 3, -1, 1, 40.0),
    Sketcher.Constraint("DistanceY", -1, 1, 0, 3, 65.0),
])
pocket4 = doc.addObject("PartDesign::Pocket", "Pocket003")
body.addObject(pocket4)
pocket4.Profile = sketch9
pocket4.Length = 2
pocket4.Reversed = True

# Sketch on an angled plane
sketch10 = doc.addObject("Sketcher::SketchObject", "Sketch009")
body.addObject(sketch10)
sketch10.Placement = App.Placement(V(-12.5, 0, -12.5), App.Rotation(V(-0.707106781, 0, 0.707106781), V(0, 0.999999999, 0), V(-0.707106781, 0, -0.707106781), "ZXY"))
add_polygon(sketch10, [(-139.6, -21.9), (-74.4, 5.8), (-77.1, 10), (-137, -15.4), (-138.9, -10.8), (-143.5, -12.7)])  # lines 0-5
sketch10.addGeometry(Part.LineSegment(V(-74.4, 5.8, 0), V(-139.6, -21.9, 0)), True)  # axis
sketch10.addConstraint([
    Sketcher.Constraint("Coincident", 6, 1, 0, 2),
    Sketcher.Constraint("Coincident", 6, 2, 5, 2),
    Sketcher.Constraint("Parallel", 0, 2),
    Sketcher.Constraint("Perpendicular", 2, 3),
    Sketcher.Constraint("Perpendicular", 3, 4),
    Sketcher.Constraint("Perpendicular", 4, 5),
    Sketcher.Constraint("Equal", 1, 3),
    Sketcher.Constraint("Equal", 3, 4),
    Sketcher.Constraint("Distance", 1, 5.0),
    Sketcher.Constraint("Distance", 2, 65.0),
    Sketcher.Constraint("DistanceY", -1, 1, 1, 2, 10.0),
    Sketcher.Constraint("Distance", 0, 70.88134),
    Sketcher.Constraint("DistanceY", -1, 1, 0, 2, 5.81297),
    Sketcher.Constraint("DistanceX", 2, 2, -1, 1, 136.962781),
])
revolution = doc.addObject("PartDesign::Revolution", "Revolution")
body.addObject(revolution)
revolution.Profile = sketch10
revolution.ReferenceAxis = (sketch10, ["Axis0"])
revolution.Angle = 360
doc.recompute()

mirrored = doc.addObject("PartDesign::Mirrored", "Mirrored")
body.addObject(mirrored)
mirrored.Originals = [revolution]
mirrored.MirrorPlane = (doc.XY_Plane, [""])
body.Tip = mirrored
doc.recompute()

mirrored2 = doc.addObject("PartDesign::Mirrored", "Mirrored001")
body.addObject(mirrored2)
mirrored2.Originals = [revolution]
mirrored2.MirrorPlane = (doc.YZ_Plane, [""])
body.Tip = mirrored2

# Sketch on an angled plane
sketch11 = doc.addObject("Sketcher::SketchObject", "Sketch010")
body.addObject(sketch11)
sketch11.Placement = App.Placement(V(12.5, 0, 12.5), App.Rotation(V(0.707106781, 0, -0.707106781), V(0, 0.999999999, 0), V(0.707106781, 0, 0.707106781), "ZXY"))
add_polygon(sketch11, [(-139.6, -21.9), (-74.4, 5.8), (-77.1, 10), (-137, -15.4), (-138.9, -10.8), (-143.5, -12.7)])  # lines 0-5
sketch11.addGeometry(Part.LineSegment(V(-74.4, 5.8, 0), V(-139.6, -21.9, 0)), True)  # axis
sketch11.addConstraint([
    Sketcher.Constraint("Coincident", 6, 1, 0, 2),
    Sketcher.Constraint("Coincident", 6, 2, 5, 2),
    Sketcher.Constraint("Parallel", 0, 2),
    Sketcher.Constraint("Perpendicular", 2, 3),
    Sketcher.Constraint("Perpendicular", 3, 4),
    Sketcher.Constraint("Perpendicular", 4, 5),
    Sketcher.Constraint("Equal", 1, 3),
    Sketcher.Constraint("Equal", 3, 4),
    Sketcher.Constraint("Distance", 1, 5.0),
    Sketcher.Constraint("Distance", 2, 65.0),
    Sketcher.Constraint("DistanceY", -1, 1, 1, 2, 10.0),
    Sketcher.Constraint("Distance", 0, 70.88134),
    Sketcher.Constraint("DistanceY", -1, 1, 0, 2, 5.81297),
    Sketcher.Constraint("DistanceX", 2, 2, -1, 1, 136.962781),
])
revolution2 = doc.addObject("PartDesign::Revolution", "Revolution001")
body.addObject(revolution2)
revolution2.Profile = sketch11
revolution2.ReferenceAxis = (sketch11, ["Axis0"])
revolution2.Angle = 360

# Sketch on XZ plane
sketch12 = doc.addObject("Sketcher::SketchObject", "Sketch011")
body.addObject(sketch12)
sketch12.AttachmentSupport = (doc.XZ_Plane, [""])
sketch12.MapMode = "FlatFace"
sketch12.AttachmentOffset = App.Placement(V(0, 0, -9.5), App.Rotation())
add_polygon(sketch12, [(-39.7, 68.3), (-43.4, 64.9), (-45.7, 67.4), (-42, 70.8)])  # lines 0-3
add_polygon(sketch12, [(39.7, 68.3), (42, 70.8), (45.7, 67.4), (43.4, 64.9)])  # lines 4-7
add_polygon(sketch12, [(39.7, -68.3), (43.4, -64.9), (45.7, -67.4), (42, -70.8)])  # lines 8-11
add_polygon(sketch12, [(-39.7, -68.3), (-42, -70.8), (-45.7, -67.4), (-43.4, -64.9)])  # lines 12-15
sketch12.addConstraint([
    Sketcher.Constraint("Symmetric", 0, 2, 8, 2, -1, 1),
    Sketcher.Constraint("Symmetric", 1, 2, 9, 2, -1, 1),
    Sketcher.Constraint("Symmetric", 2, 2, 10, 2, -1, 1),
    Sketcher.Constraint("Symmetric", 3, 2, 11, 2, -1, 1),
    Sketcher.Constraint("Symmetric", 4, 2, 12, 2, -1, 1),
    Sketcher.Constraint("Symmetric", 5, 2, 13, 2, -1, 1),
    Sketcher.Constraint("Symmetric", 6, 2, 14, 2, -1, 1),
    Sketcher.Constraint("Symmetric", 7, 2, 15, 2, -1, 1),
    Sketcher.Constraint("Symmetric", 2, 2, 4, 2, -2),
    Sketcher.Constraint("Symmetric", 1, 2, 5, 2, -2),
    Sketcher.Constraint("Symmetric", 0, 2, 6, 2, -2),
    Sketcher.Constraint("Symmetric", 3, 2, 7, 2, -2),
    Sketcher.Constraint("Perpendicular", 0, 1),
    Sketcher.Constraint("Perpendicular", 1, 2),
    Sketcher.Constraint("Perpendicular", 2, 3),
    Sketcher.Constraint("DistanceY", -1, 1, 0, 2, 64.899),
    Sketcher.Constraint("Distance", 0, 5.019652),
    Sketcher.Constraint("DistanceY", -1, 1, 1, 2, 67.446989),
    Sketcher.Constraint("DistanceX", 1, 2, 0, 2, 2.30213),
    Sketcher.Constraint("DistanceX", 3, 2, 4, 2, 81.68702),
])
pocket5 = doc.addObject("PartDesign::Pocket", "Pocket004")
body.addObject(pocket5)
pocket5.Profile = sketch12
pocket5.Type = "ThroughAll"

doc.recompute()
